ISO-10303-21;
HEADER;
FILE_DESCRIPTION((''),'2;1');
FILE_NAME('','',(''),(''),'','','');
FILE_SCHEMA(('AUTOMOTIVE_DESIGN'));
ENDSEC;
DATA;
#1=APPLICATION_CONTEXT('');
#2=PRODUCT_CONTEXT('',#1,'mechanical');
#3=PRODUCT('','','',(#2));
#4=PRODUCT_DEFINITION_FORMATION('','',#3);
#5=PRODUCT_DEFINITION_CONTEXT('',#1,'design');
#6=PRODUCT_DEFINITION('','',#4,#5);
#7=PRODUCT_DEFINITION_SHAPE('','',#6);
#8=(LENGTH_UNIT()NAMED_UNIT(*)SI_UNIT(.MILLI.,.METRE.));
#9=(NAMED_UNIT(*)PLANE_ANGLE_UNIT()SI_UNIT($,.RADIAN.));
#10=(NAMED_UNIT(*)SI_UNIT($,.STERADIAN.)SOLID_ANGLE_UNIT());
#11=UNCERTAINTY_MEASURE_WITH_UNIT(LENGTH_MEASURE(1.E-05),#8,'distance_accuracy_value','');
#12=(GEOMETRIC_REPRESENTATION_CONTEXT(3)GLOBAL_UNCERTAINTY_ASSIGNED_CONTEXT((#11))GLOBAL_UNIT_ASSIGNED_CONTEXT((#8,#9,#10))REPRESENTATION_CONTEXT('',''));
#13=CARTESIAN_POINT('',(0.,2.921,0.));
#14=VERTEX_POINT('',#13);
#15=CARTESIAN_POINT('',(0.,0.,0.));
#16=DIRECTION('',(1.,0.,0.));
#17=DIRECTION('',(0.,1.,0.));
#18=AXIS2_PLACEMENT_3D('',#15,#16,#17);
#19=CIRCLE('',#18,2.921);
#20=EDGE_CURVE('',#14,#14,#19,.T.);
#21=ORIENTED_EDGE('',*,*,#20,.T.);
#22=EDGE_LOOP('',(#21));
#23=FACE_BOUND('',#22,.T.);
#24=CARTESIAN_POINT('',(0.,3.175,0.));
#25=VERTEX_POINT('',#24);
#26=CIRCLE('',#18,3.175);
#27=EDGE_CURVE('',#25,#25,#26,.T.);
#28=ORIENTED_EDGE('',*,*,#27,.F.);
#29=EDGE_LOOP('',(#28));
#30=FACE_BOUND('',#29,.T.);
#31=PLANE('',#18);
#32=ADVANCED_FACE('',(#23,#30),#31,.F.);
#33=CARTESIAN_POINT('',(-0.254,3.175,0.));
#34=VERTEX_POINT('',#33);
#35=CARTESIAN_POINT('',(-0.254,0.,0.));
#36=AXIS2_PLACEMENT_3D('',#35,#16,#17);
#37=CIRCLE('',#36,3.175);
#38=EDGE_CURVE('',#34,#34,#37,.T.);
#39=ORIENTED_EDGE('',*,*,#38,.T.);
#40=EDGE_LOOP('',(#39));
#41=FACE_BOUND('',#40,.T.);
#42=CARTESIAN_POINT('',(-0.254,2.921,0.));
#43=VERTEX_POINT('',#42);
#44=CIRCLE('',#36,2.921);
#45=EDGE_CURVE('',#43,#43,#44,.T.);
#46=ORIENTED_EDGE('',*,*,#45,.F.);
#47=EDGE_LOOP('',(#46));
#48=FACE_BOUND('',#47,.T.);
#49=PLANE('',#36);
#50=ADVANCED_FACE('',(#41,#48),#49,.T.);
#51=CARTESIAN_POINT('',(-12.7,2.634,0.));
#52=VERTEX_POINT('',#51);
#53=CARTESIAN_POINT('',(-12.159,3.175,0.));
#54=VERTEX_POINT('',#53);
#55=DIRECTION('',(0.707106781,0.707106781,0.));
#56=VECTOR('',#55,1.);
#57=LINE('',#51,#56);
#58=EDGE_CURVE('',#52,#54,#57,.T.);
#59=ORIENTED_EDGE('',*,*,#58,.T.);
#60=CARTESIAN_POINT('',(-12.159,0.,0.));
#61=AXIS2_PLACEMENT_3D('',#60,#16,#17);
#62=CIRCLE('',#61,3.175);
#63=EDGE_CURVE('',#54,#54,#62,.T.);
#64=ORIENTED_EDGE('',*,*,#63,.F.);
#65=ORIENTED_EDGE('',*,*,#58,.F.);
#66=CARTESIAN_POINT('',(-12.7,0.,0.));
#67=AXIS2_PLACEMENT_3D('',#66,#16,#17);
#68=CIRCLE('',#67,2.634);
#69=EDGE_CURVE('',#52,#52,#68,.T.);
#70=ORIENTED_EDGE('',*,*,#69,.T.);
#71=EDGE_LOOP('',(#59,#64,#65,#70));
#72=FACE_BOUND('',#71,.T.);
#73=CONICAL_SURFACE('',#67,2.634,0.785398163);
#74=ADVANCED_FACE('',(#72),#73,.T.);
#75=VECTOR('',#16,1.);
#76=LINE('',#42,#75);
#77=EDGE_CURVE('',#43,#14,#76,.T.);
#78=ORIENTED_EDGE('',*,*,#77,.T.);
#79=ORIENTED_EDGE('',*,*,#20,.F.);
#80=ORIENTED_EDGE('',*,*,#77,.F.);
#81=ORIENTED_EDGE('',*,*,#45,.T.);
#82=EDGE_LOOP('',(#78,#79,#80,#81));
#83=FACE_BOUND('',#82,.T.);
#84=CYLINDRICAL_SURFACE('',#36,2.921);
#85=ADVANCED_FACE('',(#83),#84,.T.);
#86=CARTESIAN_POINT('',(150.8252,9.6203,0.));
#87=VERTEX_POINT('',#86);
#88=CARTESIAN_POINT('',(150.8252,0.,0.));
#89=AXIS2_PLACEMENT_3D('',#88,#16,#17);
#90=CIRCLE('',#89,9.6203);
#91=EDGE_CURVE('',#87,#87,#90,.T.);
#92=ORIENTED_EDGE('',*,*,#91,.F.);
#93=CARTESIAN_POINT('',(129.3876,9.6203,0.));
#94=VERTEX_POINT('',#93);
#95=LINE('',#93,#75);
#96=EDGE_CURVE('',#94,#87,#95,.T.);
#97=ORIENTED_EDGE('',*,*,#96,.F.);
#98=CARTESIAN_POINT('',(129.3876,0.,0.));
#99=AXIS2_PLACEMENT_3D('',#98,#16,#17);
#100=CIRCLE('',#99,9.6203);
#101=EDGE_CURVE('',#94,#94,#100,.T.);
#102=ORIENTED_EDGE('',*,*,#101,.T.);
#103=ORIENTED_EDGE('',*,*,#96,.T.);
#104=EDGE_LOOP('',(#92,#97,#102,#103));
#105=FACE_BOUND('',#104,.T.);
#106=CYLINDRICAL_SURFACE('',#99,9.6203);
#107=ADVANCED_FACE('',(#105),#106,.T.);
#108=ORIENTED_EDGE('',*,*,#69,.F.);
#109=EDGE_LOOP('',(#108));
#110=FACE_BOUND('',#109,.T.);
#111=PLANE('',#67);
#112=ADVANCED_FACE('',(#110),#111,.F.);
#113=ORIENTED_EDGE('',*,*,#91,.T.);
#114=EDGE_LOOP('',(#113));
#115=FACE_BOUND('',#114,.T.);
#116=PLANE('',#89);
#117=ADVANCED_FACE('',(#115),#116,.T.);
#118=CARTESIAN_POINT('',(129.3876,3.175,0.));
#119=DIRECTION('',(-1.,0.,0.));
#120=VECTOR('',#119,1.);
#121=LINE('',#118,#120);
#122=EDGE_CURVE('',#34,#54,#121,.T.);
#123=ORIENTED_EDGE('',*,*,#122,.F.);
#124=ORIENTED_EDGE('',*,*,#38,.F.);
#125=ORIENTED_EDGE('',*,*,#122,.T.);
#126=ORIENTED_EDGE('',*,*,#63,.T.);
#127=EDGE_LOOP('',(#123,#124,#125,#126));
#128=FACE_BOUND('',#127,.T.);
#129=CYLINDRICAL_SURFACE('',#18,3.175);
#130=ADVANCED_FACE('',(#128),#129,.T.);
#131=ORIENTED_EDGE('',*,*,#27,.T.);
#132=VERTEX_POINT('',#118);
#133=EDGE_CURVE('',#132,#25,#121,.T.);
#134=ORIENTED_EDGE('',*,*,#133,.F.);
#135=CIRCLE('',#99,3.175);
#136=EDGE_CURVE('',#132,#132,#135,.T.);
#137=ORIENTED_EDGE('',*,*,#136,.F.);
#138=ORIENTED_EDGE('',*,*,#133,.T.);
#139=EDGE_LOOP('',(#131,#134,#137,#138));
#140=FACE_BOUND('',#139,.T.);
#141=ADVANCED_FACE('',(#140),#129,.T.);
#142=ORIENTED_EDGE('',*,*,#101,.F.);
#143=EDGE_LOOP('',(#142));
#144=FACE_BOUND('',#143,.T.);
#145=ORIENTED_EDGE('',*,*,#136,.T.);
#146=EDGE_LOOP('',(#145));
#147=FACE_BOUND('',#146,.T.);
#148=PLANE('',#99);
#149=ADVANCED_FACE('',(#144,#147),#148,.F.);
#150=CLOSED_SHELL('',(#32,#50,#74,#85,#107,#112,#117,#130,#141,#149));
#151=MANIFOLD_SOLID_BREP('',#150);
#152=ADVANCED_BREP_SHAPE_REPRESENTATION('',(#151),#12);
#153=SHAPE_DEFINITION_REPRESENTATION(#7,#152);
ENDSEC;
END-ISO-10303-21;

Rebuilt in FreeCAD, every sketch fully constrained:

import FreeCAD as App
import Part
import Sketcher
from FreeCAD import Vector
Q = App.Units.Quantity

doc = App.newDocument("Part")
body = doc.addObject("PartDesign::Body", "Body")

sketch1 = body.newObject("Sketcher::SketchObject", "Sketch")
sketch1.AttachmentSupport = (doc.getObject("XY_Plane"), [""])
sketch1.MapMode = "FlatFace"
sketch1.addGeometry(Part.LineSegment(Vector(0, 0, 0), Vector(150.8, 0, 0)), False)
sketch1.addGeometry(Part.LineSegment(Vector(150.8, 0, 0), Vector(150.8, 9.6, 0)), False)
sketch1.addGeometry(Part.LineSegment(Vector(150.8, 9.6, 0), Vector(129.4, 9.6, 0)), False)
sketch1.addGeometry(Part.LineSegment(Vector(129.4, 9.6, 0), Vector(129.4, 3.2, 0)), False)
sketch1.addGeometry(Part.LineSegment(Vector(129.4, 3.2, 0), Vector(0, 3.2, 0)), False)
sketch1.addGeometry(Part.LineSegment(Vector(0, 3.2, 0), Vector(0, 0, 0)), False)
sketch1.addConstraint(Sketcher.Constraint("Coincident", 0, 2, 1, 1))
sketch1.addConstraint(Sketcher.Constraint("Coincident", 1, 2, 2, 1))
sketch1.addConstraint(Sketcher.Constraint("Coincident", 2, 2, 3, 1))
sketch1.addConstraint(Sketcher.Constraint("Coincident", 3, 2, 4, 1))
sketch1.addConstraint(Sketcher.Constraint("Coincident", 4, 2, 5, 1))
sketch1.addConstraint(Sketcher.Constraint("Coincident", 5, 2, 0, 1))
sketch1.addConstraint(Sketcher.Constraint("Horizontal", 0))
sketch1.addConstraint(Sketcher.Constraint("Vertical", 1))
sketch1.addConstraint(Sketcher.Constraint("Horizontal", 2))
sketch1.addConstraint(Sketcher.Constraint("Vertical", 3))
sketch1.addConstraint(Sketcher.Constraint("Horizontal", 4))
sketch1.addConstraint(Sketcher.Constraint("Vertical", 5))
sketch1.addConstraint(Sketcher.Constraint("Coincident", 5, 2, -1, 1))
sketch1.addConstraint(Sketcher.Constraint("DistanceX", 0, 1, 0, 2, Q("5.938 in")))
sketch1.addConstraint(Sketcher.Constraint("DistanceX", 2, 2, 2, 1, Q("0.844 in")))
sketch1.addConstraint(Sketcher.Constraint("DistanceY", 5, 2, 5, 1, Q("0.125 in")))
sketch1.addConstraint(Sketcher.Constraint("DistanceY", 1, 1, 1, 2, Q("9.6203 mm")))
revolution = body.newObject("PartDesign::Revolution", "Revolution")
revolution.Profile = sketch1
revolution.ReferenceAxis = (sketch1, ["H_Axis"])
revolution.Angle = 360

sketch2 = body.newObject("Sketcher::SketchObject", "Sketch001")
sketch2.AttachmentSupport = (doc.getObject("XY_Plane"), [""])
sketch2.MapMode = "FlatFace"
sketch2.addGeometry(Part.LineSegment(Vector(-12.7, 0, 0), Vector(0, 0, 0)), False)
sketch2.addGeometry(Part.LineSegment(Vector(0, 0, 0), Vector(0, 3.2, 0)), False)
sketch2.addGeometry(Part.LineSegment(Vector(0, 3.2, 0), Vector(-12.2, 3.2, 0)), False)
sketch2.addGeometry(Part.LineSegment(Vector(-12.2, 3.2, 0), Vector(-12.7, 2.6, 0)), False)
sketch2.addGeometry(Part.LineSegment(Vector(-12.7, 2.6, 0), Vector(-12.7, 0, 0)), False)
sketch2.addConstraint(Sketcher.Constraint("Coincident", 0, 2, 1, 1))
sketch2.addConstraint(Sketcher.Constraint("Coincident", 1, 2, 2, 1))
sketch2.addConstraint(Sketcher.Constraint("Coincident", 2, 2, 3, 1))
sketch2.addConstraint(Sketcher.Constraint("Coincident", 3, 2, 4, 1))
sketch2.addConstraint(Sketcher.Constraint("Coincident", 4, 2, 0, 1))
sketch2.addConstraint(Sketcher.Constraint("Horizontal", 0))
sketch2.addConstraint(Sketcher.Constraint("Vertical", 1))
sketch2.addConstraint(Sketcher.Constraint("Horizontal", 2))
sketch2.addConstraint(Sketcher.Constraint("Vertical", 4))
sketch2.addConstraint(Sketcher.Constraint("Coincident", 0, 2, -1, 1))
sketch2.addConstraint(Sketcher.Constraint("DistanceX", 0, 1, 0, 2, Q("0.5 in")))
sketch2.addConstraint(Sketcher.Constraint("Angle", 3, Q("-135 deg")))
sketch2.addConstraint(Sketcher.Constraint("DistanceY", 1, 1, 1, 2, Q("0.125 in")))
sketch2.addConstraint(Sketcher.Constraint("DistanceX", 2, 2, 2, 1, Q("0.4787 in")))
revolution2 = body.newObject("PartDesign::Revolution", "Revolution001")
revolution2.Profile = sketch2
revolution2.ReferenceAxis = (sketch2, ["H_Axis"])
revolution2.Angle = 360

sketch3 = body.newObject("Sketcher::SketchObject", "Sketch002")
sketch3.AttachmentSupport = (doc.getObject("XY_Plane"), [""])
sketch3.MapMode = "FlatFace"
sketch3.addGeometry(Part.LineSegment(Vector(-0.25, 3.43, 0), Vector(-0.25, 2.92, 0)), False)
sketch3.addGeometry(Part.LineSegment(Vector(-0.25, 2.92, 0), Vector(0, 2.92, 0)), False)
sketch3.addGeometry(Part.LineSegment(Vector(0, 2.92, 0), Vector(0, 3.43, 0)), False)
sketch3.addGeometry(Part.LineSegment(Vector(0, 3.43, 0), Vector(-0.25, 3.43, 0)), False)
sketch3.addConstraint(Sketcher.Constraint("Coincident", 0, 2, 1, 1))
sketch3.addConstraint(Sketcher.Constraint("Coincident", 1, 2, 2, 1))
sketch3.addConstraint(Sketcher.Constraint("Coincident", 2, 2, 3, 1))
sketch3.addConstraint(Sketcher.Constraint("Coincident", 3, 2, 0, 1))
sketch3.addConstraint(Sketcher.Constraint("Vertical", 0))
sketch3.addConstraint(Sketcher.Constraint("Horizontal", 1))
sketch3.addConstraint(Sketcher.Constraint("Vertical", 2))
sketch3.addConstraint(Sketcher.Constraint("Horizontal", 3))
sketch3.addConstraint(Sketcher.Constraint("PointOnObject", 1, 2, -2))
sketch3.addConstraint(Sketcher.Constraint("DistanceX", 1, 1, 1, 2, Q("0.01 in")))
sketch3.addConstraint(Sketcher.Constraint("DistanceY", 0, 2, 0, 1, Q("0.02 in")))
sketch3.addConstraint(Sketcher.Constraint("DistanceY", -1, 1, 0, 2, Q("0.115 in")))
groove = body.newObject("PartDesign::Groove", "Groove")
groove.Profile = sketch3
groove.ReferenceAxis = (sketch3, ["H_Axis"])
groove.Angle = 360

doc.recompute()
